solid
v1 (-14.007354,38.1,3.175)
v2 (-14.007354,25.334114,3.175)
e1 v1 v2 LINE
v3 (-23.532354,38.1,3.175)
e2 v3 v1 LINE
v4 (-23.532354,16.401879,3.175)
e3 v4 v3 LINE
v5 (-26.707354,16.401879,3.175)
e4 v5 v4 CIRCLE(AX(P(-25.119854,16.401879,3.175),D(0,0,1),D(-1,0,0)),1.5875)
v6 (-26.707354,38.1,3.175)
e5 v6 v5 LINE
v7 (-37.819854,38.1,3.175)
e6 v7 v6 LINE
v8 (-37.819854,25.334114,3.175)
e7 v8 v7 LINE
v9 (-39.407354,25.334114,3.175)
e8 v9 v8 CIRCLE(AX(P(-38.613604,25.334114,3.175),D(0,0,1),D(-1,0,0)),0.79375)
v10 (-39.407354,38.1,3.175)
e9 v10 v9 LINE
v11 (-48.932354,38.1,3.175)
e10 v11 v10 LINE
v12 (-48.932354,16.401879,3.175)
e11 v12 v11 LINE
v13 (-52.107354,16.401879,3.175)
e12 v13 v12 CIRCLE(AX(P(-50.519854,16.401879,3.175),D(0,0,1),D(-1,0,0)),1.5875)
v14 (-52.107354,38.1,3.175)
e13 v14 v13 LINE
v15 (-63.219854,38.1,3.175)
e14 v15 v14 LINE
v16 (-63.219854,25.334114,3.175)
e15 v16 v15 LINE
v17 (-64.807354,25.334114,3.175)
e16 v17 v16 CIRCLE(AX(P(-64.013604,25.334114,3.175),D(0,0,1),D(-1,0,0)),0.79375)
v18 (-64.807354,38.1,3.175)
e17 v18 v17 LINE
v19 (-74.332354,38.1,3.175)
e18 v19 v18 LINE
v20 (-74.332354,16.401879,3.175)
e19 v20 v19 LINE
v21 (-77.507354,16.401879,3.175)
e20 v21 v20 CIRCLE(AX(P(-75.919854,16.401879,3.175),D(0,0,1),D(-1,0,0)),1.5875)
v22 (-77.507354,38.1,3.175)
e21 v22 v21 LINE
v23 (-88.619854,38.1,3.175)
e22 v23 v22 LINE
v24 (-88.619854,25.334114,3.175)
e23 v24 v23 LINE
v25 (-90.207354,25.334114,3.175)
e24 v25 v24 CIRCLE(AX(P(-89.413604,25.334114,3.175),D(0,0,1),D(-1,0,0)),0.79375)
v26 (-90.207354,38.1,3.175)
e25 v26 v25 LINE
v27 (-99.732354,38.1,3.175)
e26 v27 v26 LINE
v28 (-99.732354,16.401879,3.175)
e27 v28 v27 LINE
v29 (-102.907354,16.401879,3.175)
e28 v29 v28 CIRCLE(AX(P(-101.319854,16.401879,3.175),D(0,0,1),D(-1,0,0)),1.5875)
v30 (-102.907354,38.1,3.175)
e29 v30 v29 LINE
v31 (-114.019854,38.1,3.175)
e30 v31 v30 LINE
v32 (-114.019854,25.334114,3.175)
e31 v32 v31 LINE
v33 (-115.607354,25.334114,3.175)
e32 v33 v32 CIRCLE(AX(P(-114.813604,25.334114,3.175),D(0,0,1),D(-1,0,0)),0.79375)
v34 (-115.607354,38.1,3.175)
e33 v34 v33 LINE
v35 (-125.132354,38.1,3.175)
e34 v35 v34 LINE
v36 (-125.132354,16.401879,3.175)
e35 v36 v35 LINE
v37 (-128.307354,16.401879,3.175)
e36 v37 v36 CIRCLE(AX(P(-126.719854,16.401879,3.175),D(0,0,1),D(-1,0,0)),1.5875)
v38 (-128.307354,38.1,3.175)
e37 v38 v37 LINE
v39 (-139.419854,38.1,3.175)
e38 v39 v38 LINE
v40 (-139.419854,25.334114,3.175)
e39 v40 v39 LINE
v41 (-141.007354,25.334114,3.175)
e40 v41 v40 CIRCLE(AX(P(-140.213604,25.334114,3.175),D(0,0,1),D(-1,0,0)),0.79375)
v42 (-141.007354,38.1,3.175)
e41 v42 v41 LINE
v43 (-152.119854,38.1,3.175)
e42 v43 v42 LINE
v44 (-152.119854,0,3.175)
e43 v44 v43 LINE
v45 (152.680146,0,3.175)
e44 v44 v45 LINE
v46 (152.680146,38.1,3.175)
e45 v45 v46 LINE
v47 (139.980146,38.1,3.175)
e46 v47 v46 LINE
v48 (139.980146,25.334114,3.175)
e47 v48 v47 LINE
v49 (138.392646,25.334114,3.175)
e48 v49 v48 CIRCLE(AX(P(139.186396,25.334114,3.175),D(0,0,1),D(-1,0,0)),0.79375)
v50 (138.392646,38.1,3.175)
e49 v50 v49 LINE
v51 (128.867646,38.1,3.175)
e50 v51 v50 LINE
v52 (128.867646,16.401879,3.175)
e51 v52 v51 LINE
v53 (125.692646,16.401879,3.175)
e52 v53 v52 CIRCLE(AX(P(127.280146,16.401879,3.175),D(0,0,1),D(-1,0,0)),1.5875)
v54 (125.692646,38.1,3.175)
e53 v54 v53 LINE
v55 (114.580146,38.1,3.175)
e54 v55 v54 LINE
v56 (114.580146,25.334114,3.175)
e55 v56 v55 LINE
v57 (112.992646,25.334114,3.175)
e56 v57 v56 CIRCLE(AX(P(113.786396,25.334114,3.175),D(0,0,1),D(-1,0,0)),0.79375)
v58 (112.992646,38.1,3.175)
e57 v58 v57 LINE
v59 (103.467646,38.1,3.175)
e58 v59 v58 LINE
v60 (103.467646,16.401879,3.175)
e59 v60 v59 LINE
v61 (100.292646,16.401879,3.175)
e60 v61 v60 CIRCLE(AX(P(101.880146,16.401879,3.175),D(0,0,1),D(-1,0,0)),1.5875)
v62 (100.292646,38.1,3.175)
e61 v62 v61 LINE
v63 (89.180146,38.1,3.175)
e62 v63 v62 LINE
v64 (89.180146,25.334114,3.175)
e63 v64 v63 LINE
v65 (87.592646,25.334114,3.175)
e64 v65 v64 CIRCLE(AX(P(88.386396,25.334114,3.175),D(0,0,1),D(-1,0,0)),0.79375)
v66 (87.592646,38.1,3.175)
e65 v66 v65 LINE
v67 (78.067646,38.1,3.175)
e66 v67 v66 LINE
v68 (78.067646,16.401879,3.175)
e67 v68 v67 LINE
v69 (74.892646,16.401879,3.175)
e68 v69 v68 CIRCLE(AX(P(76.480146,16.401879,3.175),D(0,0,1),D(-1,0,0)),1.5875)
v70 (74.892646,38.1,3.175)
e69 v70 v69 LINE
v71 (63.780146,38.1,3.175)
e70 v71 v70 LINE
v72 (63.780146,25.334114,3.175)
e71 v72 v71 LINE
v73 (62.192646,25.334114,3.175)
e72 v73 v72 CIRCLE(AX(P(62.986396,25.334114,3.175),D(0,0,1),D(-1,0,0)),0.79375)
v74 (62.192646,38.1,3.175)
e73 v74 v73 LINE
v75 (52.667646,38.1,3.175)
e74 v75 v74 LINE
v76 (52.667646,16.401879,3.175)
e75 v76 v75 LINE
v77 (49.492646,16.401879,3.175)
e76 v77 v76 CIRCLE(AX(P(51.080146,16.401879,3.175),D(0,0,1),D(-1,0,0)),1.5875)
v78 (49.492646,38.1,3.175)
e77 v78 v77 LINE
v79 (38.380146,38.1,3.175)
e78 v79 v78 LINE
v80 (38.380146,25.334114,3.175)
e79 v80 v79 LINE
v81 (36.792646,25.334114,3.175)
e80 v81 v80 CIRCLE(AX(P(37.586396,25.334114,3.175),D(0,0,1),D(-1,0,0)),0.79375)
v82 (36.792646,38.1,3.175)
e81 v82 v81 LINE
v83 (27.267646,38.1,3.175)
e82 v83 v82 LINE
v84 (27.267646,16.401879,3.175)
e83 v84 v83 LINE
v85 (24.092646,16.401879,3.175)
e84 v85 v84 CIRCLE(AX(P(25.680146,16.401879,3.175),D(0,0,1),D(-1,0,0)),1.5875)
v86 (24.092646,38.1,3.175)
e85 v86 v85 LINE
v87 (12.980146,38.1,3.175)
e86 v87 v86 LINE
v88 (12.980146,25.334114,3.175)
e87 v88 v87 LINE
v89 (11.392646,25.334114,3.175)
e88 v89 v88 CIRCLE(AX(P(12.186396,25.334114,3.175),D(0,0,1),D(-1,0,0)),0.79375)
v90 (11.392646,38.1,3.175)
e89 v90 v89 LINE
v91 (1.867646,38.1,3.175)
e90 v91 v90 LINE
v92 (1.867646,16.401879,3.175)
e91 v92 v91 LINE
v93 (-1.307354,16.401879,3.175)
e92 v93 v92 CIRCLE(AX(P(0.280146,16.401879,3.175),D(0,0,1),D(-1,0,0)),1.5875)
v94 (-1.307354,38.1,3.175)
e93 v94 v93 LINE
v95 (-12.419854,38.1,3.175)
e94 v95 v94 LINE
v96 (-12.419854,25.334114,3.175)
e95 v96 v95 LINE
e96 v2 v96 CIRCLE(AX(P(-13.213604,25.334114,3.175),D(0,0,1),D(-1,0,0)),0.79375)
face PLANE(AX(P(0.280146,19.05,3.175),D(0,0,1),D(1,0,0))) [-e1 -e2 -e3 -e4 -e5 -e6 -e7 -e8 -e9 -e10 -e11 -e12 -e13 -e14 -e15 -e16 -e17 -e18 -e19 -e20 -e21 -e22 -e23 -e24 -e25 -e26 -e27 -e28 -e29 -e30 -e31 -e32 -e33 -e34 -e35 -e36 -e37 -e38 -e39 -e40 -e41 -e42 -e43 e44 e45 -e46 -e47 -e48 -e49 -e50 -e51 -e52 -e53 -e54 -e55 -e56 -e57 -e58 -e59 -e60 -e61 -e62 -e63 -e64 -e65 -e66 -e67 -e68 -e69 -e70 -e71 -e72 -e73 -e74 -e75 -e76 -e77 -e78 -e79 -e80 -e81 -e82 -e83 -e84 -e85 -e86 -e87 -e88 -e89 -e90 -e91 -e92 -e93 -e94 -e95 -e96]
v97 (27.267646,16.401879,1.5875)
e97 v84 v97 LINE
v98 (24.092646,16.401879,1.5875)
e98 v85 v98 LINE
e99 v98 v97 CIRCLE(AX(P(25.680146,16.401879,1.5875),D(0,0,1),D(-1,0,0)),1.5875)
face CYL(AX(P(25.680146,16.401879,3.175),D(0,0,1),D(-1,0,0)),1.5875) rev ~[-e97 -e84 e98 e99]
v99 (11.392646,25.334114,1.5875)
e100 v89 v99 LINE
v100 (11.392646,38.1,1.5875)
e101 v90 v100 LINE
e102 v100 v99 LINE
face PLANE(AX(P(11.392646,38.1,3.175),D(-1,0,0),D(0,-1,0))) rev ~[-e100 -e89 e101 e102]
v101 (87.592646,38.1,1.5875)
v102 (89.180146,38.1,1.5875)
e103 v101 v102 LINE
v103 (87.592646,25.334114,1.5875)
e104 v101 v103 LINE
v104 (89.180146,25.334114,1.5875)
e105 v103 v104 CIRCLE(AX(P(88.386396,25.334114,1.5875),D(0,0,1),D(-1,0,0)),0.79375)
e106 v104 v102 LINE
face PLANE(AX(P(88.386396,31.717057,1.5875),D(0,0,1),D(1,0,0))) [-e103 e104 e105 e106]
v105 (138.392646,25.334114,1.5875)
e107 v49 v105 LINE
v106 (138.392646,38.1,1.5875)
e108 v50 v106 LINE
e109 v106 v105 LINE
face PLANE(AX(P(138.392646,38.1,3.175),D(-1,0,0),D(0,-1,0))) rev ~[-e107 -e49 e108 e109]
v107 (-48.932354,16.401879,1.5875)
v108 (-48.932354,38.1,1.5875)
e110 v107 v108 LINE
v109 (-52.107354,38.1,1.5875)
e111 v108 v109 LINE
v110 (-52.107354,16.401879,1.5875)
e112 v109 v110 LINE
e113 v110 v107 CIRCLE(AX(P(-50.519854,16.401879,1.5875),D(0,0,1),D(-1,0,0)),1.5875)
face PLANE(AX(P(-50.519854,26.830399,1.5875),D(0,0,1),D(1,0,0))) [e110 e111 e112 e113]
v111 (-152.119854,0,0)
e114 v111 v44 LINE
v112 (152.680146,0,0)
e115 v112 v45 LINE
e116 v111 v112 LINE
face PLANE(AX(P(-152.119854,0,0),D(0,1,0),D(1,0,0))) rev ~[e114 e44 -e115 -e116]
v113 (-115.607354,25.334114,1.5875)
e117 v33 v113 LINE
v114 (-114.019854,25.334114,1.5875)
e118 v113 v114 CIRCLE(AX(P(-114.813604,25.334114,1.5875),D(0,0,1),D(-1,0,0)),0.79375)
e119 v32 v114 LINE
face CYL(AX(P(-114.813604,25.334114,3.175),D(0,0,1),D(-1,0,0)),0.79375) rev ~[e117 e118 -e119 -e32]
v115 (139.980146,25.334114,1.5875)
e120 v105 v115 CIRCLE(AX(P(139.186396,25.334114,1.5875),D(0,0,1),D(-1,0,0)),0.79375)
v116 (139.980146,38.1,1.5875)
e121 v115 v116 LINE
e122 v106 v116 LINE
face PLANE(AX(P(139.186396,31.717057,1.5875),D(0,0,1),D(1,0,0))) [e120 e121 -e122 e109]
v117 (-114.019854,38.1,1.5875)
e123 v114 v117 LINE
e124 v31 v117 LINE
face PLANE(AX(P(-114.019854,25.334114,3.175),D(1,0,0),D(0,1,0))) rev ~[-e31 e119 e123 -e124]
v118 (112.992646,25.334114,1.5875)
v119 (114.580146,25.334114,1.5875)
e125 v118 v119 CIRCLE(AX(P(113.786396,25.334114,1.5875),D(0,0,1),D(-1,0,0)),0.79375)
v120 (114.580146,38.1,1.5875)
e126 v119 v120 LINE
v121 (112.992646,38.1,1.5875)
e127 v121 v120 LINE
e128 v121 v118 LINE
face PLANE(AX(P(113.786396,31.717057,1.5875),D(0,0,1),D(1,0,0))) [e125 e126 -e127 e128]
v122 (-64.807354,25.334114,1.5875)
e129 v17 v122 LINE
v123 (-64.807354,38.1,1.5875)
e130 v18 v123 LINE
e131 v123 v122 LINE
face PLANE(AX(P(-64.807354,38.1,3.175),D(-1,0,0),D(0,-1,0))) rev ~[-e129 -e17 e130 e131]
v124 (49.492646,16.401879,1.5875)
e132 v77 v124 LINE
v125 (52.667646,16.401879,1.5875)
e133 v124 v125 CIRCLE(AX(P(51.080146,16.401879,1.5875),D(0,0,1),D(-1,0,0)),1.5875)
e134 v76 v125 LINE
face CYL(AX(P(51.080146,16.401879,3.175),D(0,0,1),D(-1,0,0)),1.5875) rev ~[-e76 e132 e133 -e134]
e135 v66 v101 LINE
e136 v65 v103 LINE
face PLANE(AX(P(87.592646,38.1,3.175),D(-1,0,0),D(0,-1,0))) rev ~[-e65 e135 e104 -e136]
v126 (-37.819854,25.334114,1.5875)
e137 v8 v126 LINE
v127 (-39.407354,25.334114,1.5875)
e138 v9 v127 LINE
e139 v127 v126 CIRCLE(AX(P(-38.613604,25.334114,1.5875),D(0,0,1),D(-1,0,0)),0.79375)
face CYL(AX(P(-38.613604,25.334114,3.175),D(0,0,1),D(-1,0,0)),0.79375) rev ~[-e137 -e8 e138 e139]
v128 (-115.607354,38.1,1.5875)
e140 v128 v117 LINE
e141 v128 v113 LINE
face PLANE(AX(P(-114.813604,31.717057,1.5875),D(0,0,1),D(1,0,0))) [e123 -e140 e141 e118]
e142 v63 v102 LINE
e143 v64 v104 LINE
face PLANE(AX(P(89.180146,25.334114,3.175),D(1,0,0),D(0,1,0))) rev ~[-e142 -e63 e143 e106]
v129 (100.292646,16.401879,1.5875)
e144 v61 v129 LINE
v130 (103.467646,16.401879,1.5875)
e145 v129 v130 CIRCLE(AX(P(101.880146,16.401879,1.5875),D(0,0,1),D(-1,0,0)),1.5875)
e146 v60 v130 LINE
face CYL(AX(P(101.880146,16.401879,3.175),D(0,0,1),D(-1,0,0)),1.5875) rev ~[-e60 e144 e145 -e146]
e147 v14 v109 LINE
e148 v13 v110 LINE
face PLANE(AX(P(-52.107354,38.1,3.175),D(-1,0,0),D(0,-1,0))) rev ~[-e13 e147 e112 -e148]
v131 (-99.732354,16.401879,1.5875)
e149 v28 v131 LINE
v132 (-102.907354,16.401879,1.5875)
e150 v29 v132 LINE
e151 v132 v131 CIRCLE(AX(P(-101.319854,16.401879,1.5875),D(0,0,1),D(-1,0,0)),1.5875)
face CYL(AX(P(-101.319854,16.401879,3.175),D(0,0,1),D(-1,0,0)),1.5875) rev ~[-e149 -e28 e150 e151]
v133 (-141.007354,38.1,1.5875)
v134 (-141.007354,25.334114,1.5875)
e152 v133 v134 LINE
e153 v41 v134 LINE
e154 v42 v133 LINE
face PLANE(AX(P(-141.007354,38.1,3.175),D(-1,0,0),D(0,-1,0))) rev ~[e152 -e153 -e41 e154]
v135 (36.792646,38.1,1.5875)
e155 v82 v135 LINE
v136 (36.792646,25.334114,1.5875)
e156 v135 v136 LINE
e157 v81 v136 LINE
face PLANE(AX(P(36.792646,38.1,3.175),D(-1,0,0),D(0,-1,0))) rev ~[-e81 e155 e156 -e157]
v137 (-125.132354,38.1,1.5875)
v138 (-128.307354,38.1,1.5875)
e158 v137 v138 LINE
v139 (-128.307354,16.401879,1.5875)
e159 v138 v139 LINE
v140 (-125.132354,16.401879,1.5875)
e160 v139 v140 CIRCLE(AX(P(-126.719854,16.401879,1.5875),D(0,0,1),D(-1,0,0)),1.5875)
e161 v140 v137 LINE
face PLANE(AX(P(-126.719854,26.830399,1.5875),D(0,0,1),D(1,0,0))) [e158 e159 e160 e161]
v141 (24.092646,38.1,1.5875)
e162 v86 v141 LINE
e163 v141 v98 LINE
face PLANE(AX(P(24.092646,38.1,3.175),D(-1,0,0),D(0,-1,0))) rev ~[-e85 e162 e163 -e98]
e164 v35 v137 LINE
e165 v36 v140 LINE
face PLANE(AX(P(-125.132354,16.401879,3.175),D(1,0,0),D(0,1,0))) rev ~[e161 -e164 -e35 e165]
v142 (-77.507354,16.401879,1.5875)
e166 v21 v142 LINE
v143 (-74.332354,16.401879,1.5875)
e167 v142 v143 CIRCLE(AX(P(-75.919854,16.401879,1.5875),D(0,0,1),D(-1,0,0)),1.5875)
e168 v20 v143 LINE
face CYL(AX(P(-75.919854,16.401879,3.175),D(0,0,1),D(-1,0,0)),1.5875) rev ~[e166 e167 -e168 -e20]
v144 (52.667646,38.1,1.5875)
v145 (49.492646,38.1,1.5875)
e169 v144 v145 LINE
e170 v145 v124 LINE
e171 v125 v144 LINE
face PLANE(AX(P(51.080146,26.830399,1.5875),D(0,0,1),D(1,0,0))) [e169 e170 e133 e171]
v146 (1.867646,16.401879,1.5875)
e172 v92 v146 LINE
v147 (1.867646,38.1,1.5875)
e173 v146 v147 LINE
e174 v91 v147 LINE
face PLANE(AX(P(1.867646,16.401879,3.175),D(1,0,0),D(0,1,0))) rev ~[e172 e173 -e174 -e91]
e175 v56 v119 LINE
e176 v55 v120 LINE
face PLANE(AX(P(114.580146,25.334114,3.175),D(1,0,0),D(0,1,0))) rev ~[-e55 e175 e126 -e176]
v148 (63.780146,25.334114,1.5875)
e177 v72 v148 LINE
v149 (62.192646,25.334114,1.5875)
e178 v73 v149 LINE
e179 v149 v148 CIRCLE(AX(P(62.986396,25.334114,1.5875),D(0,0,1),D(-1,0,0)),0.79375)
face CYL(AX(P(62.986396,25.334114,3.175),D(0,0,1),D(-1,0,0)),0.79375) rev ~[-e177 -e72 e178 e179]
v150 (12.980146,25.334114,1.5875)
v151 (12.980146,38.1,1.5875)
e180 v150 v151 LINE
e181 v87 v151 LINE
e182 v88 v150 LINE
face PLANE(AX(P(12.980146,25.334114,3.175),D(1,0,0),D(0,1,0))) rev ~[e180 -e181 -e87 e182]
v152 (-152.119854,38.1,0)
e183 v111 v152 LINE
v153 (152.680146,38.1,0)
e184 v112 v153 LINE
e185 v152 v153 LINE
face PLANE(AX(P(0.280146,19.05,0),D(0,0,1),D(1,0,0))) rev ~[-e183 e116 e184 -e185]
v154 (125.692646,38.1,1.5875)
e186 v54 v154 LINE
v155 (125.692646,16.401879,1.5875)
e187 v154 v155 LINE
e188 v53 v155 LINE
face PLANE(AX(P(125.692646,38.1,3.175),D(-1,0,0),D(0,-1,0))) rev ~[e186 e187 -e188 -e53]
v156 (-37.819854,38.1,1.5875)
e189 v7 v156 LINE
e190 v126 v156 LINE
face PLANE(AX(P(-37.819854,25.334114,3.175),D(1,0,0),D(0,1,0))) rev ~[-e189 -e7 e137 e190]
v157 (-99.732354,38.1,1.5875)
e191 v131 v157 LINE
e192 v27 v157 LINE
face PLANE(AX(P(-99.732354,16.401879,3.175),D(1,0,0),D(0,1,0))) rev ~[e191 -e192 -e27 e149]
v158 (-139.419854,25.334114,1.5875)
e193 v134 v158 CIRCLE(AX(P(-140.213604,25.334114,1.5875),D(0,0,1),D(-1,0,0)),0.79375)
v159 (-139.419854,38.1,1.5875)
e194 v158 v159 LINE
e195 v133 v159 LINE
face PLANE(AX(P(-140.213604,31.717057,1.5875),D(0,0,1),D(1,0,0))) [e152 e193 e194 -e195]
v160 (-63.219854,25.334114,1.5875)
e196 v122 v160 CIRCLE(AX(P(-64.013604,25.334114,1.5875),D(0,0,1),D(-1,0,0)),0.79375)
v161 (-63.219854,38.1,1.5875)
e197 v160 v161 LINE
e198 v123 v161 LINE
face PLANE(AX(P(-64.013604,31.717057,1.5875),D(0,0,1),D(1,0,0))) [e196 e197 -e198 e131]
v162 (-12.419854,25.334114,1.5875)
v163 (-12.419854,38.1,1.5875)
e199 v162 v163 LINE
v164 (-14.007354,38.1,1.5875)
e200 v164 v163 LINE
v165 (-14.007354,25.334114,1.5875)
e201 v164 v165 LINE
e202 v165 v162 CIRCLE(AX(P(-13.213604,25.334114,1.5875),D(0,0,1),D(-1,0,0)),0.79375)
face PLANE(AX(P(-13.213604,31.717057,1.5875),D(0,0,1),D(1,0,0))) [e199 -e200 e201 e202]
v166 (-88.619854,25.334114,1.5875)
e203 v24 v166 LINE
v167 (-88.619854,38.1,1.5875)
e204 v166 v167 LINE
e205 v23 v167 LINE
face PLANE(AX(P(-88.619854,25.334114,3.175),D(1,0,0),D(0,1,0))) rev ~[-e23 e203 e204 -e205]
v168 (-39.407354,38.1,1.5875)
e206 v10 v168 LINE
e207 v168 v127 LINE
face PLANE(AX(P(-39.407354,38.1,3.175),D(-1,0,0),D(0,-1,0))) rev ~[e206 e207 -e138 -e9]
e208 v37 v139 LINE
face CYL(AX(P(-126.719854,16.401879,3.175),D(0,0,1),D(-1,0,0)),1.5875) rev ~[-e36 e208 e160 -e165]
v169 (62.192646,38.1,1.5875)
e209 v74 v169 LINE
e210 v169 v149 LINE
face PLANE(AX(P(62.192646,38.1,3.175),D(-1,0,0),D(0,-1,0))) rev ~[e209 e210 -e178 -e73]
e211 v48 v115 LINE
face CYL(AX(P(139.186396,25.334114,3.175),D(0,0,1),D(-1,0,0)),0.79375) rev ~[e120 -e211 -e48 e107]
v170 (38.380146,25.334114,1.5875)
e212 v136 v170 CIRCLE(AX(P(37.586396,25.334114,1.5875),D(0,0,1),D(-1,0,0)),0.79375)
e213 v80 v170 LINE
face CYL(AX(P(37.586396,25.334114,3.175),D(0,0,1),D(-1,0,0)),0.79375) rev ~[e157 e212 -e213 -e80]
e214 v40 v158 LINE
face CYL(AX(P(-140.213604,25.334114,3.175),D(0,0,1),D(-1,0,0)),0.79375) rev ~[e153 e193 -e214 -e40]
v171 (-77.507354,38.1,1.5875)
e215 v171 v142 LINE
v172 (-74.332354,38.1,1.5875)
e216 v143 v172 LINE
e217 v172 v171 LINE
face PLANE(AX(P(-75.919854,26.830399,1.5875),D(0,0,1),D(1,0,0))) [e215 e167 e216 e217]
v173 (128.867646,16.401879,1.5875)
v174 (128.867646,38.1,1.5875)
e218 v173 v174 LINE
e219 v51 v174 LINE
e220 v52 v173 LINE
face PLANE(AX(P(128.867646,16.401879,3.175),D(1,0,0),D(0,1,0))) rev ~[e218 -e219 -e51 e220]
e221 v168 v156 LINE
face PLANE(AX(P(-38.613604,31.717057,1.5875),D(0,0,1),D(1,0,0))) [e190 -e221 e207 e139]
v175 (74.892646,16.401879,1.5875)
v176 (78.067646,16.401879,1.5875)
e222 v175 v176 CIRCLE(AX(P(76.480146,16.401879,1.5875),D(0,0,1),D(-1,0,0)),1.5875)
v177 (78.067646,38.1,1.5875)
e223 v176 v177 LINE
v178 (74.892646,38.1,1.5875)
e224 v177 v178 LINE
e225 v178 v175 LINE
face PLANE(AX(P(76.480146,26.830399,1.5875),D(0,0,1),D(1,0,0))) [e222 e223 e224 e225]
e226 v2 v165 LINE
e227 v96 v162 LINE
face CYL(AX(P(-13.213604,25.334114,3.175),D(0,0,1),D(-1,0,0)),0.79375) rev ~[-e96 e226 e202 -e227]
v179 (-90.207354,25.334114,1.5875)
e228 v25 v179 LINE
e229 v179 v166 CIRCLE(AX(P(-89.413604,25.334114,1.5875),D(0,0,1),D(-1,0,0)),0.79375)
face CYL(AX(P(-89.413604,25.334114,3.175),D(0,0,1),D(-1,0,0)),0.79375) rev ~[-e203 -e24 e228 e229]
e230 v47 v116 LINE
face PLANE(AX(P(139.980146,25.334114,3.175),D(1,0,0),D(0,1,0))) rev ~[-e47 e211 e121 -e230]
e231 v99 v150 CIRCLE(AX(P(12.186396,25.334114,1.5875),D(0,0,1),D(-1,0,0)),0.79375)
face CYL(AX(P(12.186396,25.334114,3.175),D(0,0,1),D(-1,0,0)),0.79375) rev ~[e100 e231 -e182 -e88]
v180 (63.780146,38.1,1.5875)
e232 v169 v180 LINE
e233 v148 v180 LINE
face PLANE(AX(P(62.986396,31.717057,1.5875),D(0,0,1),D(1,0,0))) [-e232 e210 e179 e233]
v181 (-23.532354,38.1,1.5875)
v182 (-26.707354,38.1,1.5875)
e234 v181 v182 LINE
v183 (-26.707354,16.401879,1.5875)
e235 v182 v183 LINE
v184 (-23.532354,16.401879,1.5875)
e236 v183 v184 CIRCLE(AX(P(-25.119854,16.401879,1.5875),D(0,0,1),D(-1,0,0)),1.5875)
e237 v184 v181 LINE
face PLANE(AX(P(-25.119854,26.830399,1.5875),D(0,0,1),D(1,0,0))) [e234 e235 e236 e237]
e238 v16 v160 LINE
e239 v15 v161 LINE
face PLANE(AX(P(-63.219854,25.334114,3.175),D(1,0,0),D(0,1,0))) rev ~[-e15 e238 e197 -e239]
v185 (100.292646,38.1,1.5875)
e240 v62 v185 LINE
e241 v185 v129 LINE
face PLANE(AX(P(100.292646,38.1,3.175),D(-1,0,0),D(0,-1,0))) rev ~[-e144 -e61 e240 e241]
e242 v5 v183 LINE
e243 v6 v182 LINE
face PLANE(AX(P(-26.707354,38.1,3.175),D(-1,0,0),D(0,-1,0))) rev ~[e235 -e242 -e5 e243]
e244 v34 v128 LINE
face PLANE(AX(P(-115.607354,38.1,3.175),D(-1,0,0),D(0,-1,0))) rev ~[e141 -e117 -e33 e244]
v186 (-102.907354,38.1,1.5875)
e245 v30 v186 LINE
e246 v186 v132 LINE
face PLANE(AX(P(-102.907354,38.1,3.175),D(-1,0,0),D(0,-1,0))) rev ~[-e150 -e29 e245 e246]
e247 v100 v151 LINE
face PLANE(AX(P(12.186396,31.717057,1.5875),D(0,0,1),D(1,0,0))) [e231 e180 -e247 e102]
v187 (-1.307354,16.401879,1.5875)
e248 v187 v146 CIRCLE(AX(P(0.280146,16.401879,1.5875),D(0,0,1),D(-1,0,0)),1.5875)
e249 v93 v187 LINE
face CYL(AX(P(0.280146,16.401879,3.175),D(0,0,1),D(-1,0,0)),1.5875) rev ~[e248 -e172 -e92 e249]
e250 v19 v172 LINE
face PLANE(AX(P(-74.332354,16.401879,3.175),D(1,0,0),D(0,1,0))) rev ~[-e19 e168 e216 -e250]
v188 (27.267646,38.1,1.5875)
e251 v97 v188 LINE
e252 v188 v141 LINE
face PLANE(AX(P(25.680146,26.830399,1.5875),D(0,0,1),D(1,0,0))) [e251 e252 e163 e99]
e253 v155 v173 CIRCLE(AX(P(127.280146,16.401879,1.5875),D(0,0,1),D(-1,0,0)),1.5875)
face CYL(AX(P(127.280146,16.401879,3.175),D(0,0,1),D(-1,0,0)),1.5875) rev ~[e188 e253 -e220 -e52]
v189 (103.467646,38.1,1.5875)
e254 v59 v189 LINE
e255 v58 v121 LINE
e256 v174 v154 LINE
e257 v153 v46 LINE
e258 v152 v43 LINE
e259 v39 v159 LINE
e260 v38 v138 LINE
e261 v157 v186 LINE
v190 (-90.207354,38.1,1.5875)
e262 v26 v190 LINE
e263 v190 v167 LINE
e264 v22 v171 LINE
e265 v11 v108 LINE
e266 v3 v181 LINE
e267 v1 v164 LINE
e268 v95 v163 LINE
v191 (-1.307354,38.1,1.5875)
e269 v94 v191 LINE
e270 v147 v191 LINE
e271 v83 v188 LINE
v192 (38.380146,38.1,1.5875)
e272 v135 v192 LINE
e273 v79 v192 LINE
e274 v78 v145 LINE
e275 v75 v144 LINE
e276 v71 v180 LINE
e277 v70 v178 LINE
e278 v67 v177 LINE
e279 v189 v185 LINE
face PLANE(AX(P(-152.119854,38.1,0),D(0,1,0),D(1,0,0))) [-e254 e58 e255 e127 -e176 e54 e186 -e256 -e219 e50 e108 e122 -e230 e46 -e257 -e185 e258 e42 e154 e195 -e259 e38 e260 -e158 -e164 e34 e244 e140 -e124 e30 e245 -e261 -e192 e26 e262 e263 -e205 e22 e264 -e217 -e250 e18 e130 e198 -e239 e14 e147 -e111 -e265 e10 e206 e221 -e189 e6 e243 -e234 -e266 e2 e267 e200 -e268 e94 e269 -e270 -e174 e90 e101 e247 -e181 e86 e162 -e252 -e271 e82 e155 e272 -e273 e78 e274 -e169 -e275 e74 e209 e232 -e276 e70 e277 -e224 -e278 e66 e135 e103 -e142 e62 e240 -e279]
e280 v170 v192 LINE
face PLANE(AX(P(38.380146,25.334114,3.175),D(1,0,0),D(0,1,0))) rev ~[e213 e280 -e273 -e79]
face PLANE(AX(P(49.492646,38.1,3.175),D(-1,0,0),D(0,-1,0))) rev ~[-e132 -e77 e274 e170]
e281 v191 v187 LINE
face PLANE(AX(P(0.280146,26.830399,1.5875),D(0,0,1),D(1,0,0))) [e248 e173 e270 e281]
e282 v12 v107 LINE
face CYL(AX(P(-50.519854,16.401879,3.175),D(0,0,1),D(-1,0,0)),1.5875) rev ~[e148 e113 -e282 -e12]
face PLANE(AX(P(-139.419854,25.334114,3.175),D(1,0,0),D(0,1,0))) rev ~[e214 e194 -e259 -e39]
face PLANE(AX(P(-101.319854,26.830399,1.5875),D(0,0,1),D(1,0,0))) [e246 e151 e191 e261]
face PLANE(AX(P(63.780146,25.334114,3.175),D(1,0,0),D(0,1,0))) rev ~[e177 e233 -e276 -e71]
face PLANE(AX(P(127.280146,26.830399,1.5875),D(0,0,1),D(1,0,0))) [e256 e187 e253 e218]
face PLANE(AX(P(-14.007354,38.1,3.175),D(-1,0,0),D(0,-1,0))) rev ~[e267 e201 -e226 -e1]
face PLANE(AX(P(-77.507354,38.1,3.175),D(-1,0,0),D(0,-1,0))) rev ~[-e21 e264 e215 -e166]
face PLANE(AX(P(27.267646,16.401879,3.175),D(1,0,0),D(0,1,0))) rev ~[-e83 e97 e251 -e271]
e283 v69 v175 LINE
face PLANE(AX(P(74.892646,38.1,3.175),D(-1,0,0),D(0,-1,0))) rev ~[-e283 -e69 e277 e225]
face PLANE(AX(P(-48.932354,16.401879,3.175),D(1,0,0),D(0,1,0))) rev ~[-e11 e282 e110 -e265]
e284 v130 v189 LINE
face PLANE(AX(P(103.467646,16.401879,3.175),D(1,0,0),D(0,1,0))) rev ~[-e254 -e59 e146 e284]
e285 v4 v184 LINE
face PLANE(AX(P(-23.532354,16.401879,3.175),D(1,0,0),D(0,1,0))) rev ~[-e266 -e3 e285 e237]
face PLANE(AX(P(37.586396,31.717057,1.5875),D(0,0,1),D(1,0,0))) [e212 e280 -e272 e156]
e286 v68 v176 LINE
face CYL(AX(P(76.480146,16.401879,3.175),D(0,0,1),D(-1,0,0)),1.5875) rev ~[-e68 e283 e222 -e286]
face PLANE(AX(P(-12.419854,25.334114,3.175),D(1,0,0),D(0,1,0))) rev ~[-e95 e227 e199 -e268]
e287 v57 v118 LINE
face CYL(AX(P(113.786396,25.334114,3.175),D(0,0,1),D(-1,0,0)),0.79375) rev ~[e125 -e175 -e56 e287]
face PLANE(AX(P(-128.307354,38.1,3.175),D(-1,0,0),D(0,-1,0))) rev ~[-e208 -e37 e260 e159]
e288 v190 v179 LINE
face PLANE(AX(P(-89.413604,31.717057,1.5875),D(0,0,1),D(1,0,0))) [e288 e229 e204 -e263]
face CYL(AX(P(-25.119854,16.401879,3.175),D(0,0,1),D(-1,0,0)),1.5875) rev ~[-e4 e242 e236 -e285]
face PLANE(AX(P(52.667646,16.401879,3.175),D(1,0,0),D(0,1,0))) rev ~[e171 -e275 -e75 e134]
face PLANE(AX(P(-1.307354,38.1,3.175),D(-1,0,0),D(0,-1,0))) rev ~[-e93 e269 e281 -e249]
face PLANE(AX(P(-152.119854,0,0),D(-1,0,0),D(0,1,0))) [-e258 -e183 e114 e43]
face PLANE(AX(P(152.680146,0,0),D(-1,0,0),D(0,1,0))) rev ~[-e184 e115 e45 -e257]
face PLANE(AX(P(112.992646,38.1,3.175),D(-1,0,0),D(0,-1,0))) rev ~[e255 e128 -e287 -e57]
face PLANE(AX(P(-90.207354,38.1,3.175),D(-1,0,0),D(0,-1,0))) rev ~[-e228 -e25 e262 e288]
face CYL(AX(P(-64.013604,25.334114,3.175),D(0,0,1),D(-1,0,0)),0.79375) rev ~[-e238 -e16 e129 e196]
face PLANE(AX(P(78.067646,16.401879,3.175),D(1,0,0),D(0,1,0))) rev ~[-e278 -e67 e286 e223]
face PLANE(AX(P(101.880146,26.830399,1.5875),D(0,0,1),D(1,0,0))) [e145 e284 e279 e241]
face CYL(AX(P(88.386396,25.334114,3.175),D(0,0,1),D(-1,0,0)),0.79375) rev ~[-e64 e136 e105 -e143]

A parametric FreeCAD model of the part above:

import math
import FreeCAD as App
import Part
import Sketcher

V = App.Vector
Q = App.Units.Quantity

doc = App.newDocument("Part")
params = doc.addObject("Spreadsheet::Sheet", "Params")
for row, (alias, value) in enumerate([
    ("sketch1_width", "12 in"),
    ("sketch1_height", "1.5 in"),
    ("pad1_length", "0.125 in"),
    ("sketch2_radius", "0.0625 in"),
    ("pocket1_length", "0.0625 in"),
    ("sketch3_radius", "0.03125 in"),
    ("pocket2_length", "0.0625 in"),
], start=1):
    params.set(f"A{row}", alias)
    params.set(f"B{row}", "=" + value)
    params.setAlias(f"B{row}", alias)

body = doc.addObject("PartDesign::Body", "Body")

sketch1 = body.newObject("Sketcher::SketchObject", "Sketch")
sketch1.AttachmentSupport = (doc.getObject("XY_Plane"), [""])
sketch1.MapMode = "FlatFace"
sketch1.addGeometry([
    Part.LineSegment(V(-152, 38, 0), V(-152, 0, 0)),
    Part.LineSegment(V(-152, 0, 0), V(153, 0, 0)),
    Part.LineSegment(V(153, 0, 0), V(153, 38, 0)),
    Part.LineSegment(V(153, 38, 0), V(-152, 38, 0)),
], False)
sketch1.addConstraint([
    Sketcher.Constraint("Coincident", 0, 2, 1, 1),
    Sketcher.Constraint("Coincident", 1, 2, 2, 1),
    Sketcher.Constraint("Coincident", 2, 2, 3, 1),
    Sketcher.Constraint("Coincident", 3, 2, 0, 1),
    Sketcher.Constraint("Vertical", 0),
    Sketcher.Constraint("Horizontal", 1),
    Sketcher.Constraint("Vertical", 2),
    Sketcher.Constraint("Horizontal", 3),
    Sketcher.Constraint("PointOnObject", 0, 2, -1),
    Sketcher.Constraint("DistanceX", 1, 1, 1, 2, Q("12 in")),
    Sketcher.Constraint("DistanceY", 0, 2, 0, 1, Q("1.5 in")),
    Sketcher.Constraint("DistanceX", 0, 2, -1, 1, Q("152.119854 mm")),
])
sketch1.setExpression("Constraints[9]", "Params.sketch1_width")
sketch1.setExpression("Constraints[10]", "Params.sketch1_height")
pad1 = body.newObject("PartDesign::Pad", "Pad")
pad1.Profile = sketch1
pad1.setExpression("Length", "Params.pad1_length")

sketch2 = body.newObject("Sketcher::SketchObject", "Sketch001")
sketch2.AttachmentSupport = (doc.getObject("XY_Plane"), [""])
sketch2.MapMode = "FlatFace"
sketch2.AttachmentOffset = App.Placement(V(0, 0, 0.125 * 25.4), App.Rotation())
sketch2.addGeometry([
    Part.LineSegment(V(-128.3, 38.1, 0), V(-128.3, 16.4, 0)),
    Part.ArcOfCircle(Part.Circle(V(-126.7, 16.4, 0), V(0, 0, 1), 1.6), math.radians(180), math.radians(360)),
    Part.LineSegment(V(-125.1, 16.4, 0), V(-125.1, 38.1, 0)),
    Part.LineSegment(V(-125.1, 38.1, 0), V(-128.3, 38.1, 0)),
    Part.LineSegment(V(-102.9, 38.1, 0), V(-102.9, 16.4, 0)),
    Part.ArcOfCircle(Part.Circle(V(-101.3, 16.4, 0), V(0, 0, 1), 1.6), math.radians(180), math.radians(360)),
    Part.LineSegment(V(-99.7, 16.4, 0), V(-99.7, 38.1, 0)),
    Part.LineSegment(V(-99.7, 38.1, 0), V(-102.9, 38.1, 0)),
    Part.LineSegment(V(-77.5, 38.1, 0), V(-77.5, 16.4, 0)),
    Part.ArcOfCircle(Part.Circle(V(-75.9, 16.4, 0), V(0, 0, 1), 1.6), math.radians(180), math.radians(360)),
    Part.LineSegment(V(-74.3, 16.4, 0), V(-74.3, 38.1, 0)),
    Part.LineSegment(V(-74.3, 38.1, 0), V(-77.5, 38.1, 0)),
    Part.LineSegment(V(-52.1, 38.1, 0), V(-52.1, 16.4, 0)),
    Part.ArcOfCircle(Part.Circle(V(-50.5, 16.4, 0), V(0, 0, 1), 1.6), math.radians(180), math.radians(360)),
    Part.LineSegment(V(-48.9, 16.4, 0), V(-48.9, 38.1, 0)),
    Part.LineSegment(V(-48.9, 38.1, 0), V(-52.1, 38.1, 0)),
    Part.LineSegment(V(-26.7, 38.1, 0), V(-26.7, 16.4, 0)),
    Part.ArcOfCircle(Part.Circle(V(-25.1, 16.4, 0), V(0, 0, 1), 1.6), math.radians(180), math.radians(360)),
    Part.LineSegment(V(-23.5, 16.4, 0), V(-23.5, 38.1, 0)),
    Part.LineSegment(V(-23.5, 38.1, 0), V(-26.7, 38.1, 0)),
    Part.LineSegment(V(1.9, 16.4, 0), V(1.9, 38.1, 0)),
    Part.LineSegment(V(1.9, 38.1, 0), V(-1.3, 38.1, 0)),
    Part.LineSegment(V(-1.3, 38.1, 0), V(-1.3, 16.4, 0)),
    Part.ArcOfCircle(Part.Circle(V(0.3, 16.4, 0), V(0, 0, 1), 1.6), math.radians(180), math.radians(360)),
    Part.LineSegment(V(27.3, 16.4, 0), V(27.3, 38.1, 0)),
    Part.LineSegment(V(27.3, 38.1, 0), V(24.1, 38.1, 0)),
    Part.LineSegment(V(24.1, 38.1, 0), V(24.1, 16.4, 0)),
    Part.ArcOfCircle(Part.Circle(V(25.7, 16.4, 0), V(0, 0, 1), 1.6), math.radians(180), math.radians(360)),
    Part.LineSegment(V(52.7, 16.4, 0), V(52.7, 38.1, 0)),
    Part.LineSegment(V(52.7, 38.1, 0), V(49.5, 38.1, 0)),
    Part.LineSegment(V(49.5, 38.1, 0), V(49.5, 16.4, 0)),
    Part.ArcOfCircle(Part.Circle(V(51.1, 16.4, 0), V(0, 0, 1), 1.6), math.radians(180), math.radians(360)),
    Part.LineSegment(V(78.1, 16.4, 0), V(78.1, 38.1, 0)),
    Part.LineSegment(V(78.1, 38.1, 0), V(74.9, 38.1, 0)),
    Part.LineSegment(V(74.9, 38.1, 0), V(74.9, 16.4, 0)),
    Part.ArcOfCircle(Part.Circle(V(76.5, 16.4, 0), V(0, 0, 1), 1.6), math.radians(180), math.radians(360)),
    Part.LineSegment(V(103.5, 16.4, 0), V(103.5, 38.1, 0)),
    Part.LineSegment(V(103.5, 38.1, 0), V(100.3, 38.1, 0)),
    Part.LineSegment(V(100.3, 38.1, 0), V(100.3, 16.4, 0)),
    Part.ArcOfCircle(Part.Circle(V(101.9, 16.4, 0), V(0, 0, 1), 1.6), math.radians(180), math.radians(360)),
    Part.LineSegment(V(128.9, 16.4, 0), V(128.9, 38.1, 0)),
    Part.LineSegment(V(128.9, 38.1, 0), V(125.7, 38.1, 0)),
    Part.LineSegment(V(125.7, 38.1, 0), V(125.7, 16.4, 0)),
    Part.ArcOfCircle(Part.Circle(V(127.3, 16.4, 0), V(0, 0, 1), 1.6), math.radians(180), math.radians(360)),
], False)
sketch2.addConstraint([
    Sketcher.Constraint("Tangent", 0, 2, 1, 1),
    Sketcher.Constraint("Tangent", 1, 2, 2, 1),
    Sketcher.Constraint("Coincident", 2, 2, 3, 1),
    Sketcher.Constraint("Coincident", 3, 2, 0, 1),
    Sketcher.Constraint("Tangent", 4, 2, 5, 1),
    Sketcher.Constraint("Tangent", 5, 2, 6, 1),
    Sketcher.Constraint("Coincident", 6, 2, 7, 1),
    Sketcher.Constraint("Coincident", 7, 2, 4, 1),
    Sketcher.Constraint("Tangent", 8, 2, 9, 1),
    Sketcher.Constraint("Tangent", 9, 2, 10, 1),
    Sketcher.Constraint("Coincident", 10, 2, 11, 1),
    Sketcher.Constraint("Coincident", 11, 2, 8, 1),
    Sketcher.Constraint("Tangent", 12, 2, 13, 1),
    Sketcher.Constraint("Tangent", 13, 2, 14, 1),
    Sketcher.Constraint("Coincident", 14, 2, 15, 1),
    Sketcher.Constraint("Coincident", 15, 2, 12, 1),
    Sketcher.Constraint("Tangent", 16, 2, 17, 1),
    Sketcher.Constraint("Tangent", 17, 2, 18, 1),
    Sketcher.Constraint("Coincident", 18, 2, 19, 1),
    Sketcher.Constraint("Coincident", 19, 2, 16, 1),
    Sketcher.Constraint("Coincident", 20, 2, 21, 1),
    Sketcher.Constraint("Coincident", 21, 2, 22, 1),
    Sketcher.Constraint("Tangent", 22, 2, 23, 1),
    Sketcher.Constraint("Tangent", 23, 2, 20, 1),
    Sketcher.Constraint("Coincident", 24, 2, 25, 1),
    Sketcher.Constraint("Coincident", 25, 2, 26, 1),
    Sketcher.Constraint("Tangent", 26, 2, 27, 1),
    Sketcher.Constraint("Tangent", 27, 2, 24, 1),
    Sketcher.Constraint("Coincident", 28, 2, 29, 1),
    Sketcher.Constraint("Coincident", 29, 2, 30, 1),
    Sketcher.Constraint("Tangent", 30, 2, 31, 1),
    Sketcher.Constraint("Tangent", 31, 2, 28, 1),
    Sketcher.Constraint("Coincident", 32, 2, 33, 1),
    Sketcher.Constraint("Coincident", 33, 2, 34, 1),
    Sketcher.Constraint("Tangent", 34, 2, 35, 1),
    Sketcher.Constraint("Tangent", 35, 2, 32, 1),
    Sketcher.Constraint("Coincident", 36, 2, 37, 1),
    Sketcher.Constraint("Coincident", 37, 2, 38, 1),
    Sketcher.Constraint("Tangent", 38, 2, 39, 1),
    Sketcher.Constraint("Tangent", 39, 2, 36, 1),
    Sketcher.Constraint("Coincident", 40, 2, 41, 1),
    Sketcher.Constraint("Coincident", 41, 2, 42, 1),
    Sketcher.Constraint("Tangent", 42, 2, 43, 1),
    Sketcher.Constraint("Tangent", 43, 2, 40, 1),
    Sketcher.Constraint("Vertical", 0),
    Sketcher.Constraint("Vertical", 2),
    Sketcher.Constraint("Horizontal", 3),
    Sketcher.Constraint("Vertical", 4),
    Sketcher.Constraint("Vertical", 6),
    Sketcher.Constraint("Horizontal", 7),
    Sketcher.Constraint("Vertical", 8),
    Sketcher.Constraint("Vertical", 10),
    Sketcher.Constraint("Horizontal", 11),
    Sketcher.Constraint("Vertical", 12),
    Sketcher.Constraint("Vertical", 14),
    Sketcher.Constraint("Horizontal", 15),
    Sketcher.Constraint("Vertical", 16),
    Sketcher.Constraint("Vertical", 18),
    Sketcher.Constraint("Horizontal", 19),
    Sketcher.Constraint("Vertical", 20),
    Sketcher.Constraint("Horizontal", 21),
    Sketcher.Constraint("Vertical", 22),
    Sketcher.Constraint("Vertical", 24),
    Sketcher.Constraint("Horizontal", 25),
    Sketcher.Constraint("Vertical", 26),
    Sketcher.Constraint("Vertical", 28),
    Sketcher.Constraint("Horizontal", 29),
    Sketcher.Constraint("Vertical", 30),
    Sketcher.Constraint("Vertical", 32),
    Sketcher.Constraint("Horizontal", 33),
    Sketcher.Constraint("Vertical", 34),
    Sketcher.Constraint("Vertical", 36),
    Sketcher.Constraint("Horizontal", 37),
    Sketcher.Constraint("Vertical", 38),
    Sketcher.Constraint("Vertical", 40),
    Sketcher.Constraint("Horizontal", 41),
    Sketcher.Constraint("Vertical", 42),
    Sketcher.Constraint("Equal", 1, 5),
    Sketcher.Constraint("Equal", 5, 9),
    Sketcher.Constraint("Equal", 9, 13),
    Sketcher.Constraint("Equal", 13, 17),
    Sketcher.Constraint("Equal", 17, 23),
    Sketcher.Constraint("Equal", 23, 27),
    Sketcher.Constraint("Equal", 27, 31),
    Sketcher.Constraint("Equal", 31, 35),
    Sketcher.Constraint("Equal", 35, 39),
    Sketcher.Constraint("Equal", 39, 43),
    Sketcher.Constraint("Horizontal", 1, 3, 5, 3),
    Sketcher.Constraint("Horizontal", 5, 3, 9, 3),
    Sketcher.Constraint("Horizontal", 9, 3, 13, 3),
    Sketcher.Constraint("Horizontal", 13, 3, 17, 3),
    Sketcher.Constraint("Horizontal", 17, 3, 23, 3),
    Sketcher.Constraint("Horizontal", 23, 3, 27, 3),
    Sketcher.Constraint("Horizontal", 27, 3, 31, 3),
    Sketcher.Constraint("Horizontal", 31, 3, 35, 3),
    Sketcher.Constraint("Horizontal", 35, 3, 39, 3),
    Sketcher.Constraint("Horizontal", 39, 3, 43, 3),
    Sketcher.Constraint("Horizontal", 3, 2, 6, 2),
    Sketcher.Constraint("Horizontal", 7, 2, 10, 2),
    Sketcher.Constraint("Horizontal", 11, 2, 14, 2),
    Sketcher.Constraint("Horizontal", 15, 2, 18, 2),
    Sketcher.Constraint("Horizontal", 19, 2, 20, 2),
    Sketcher.Constraint("Horizontal", 21, 2, 24, 2),
    Sketcher.Constraint("Horizontal", 25, 2, 28, 2),
    Sketcher.Constraint("Horizontal", 29, 2, 32, 2),
    Sketcher.Constraint("Horizontal", 33, 2, 36, 2),
    Sketcher.Constraint("Horizontal", 37, 2, 40, 2),
    Sketcher.Constraint("Radius", 1, Q("0.0625 in")),
    Sketcher.Constraint("DistanceX", 1, 3, 5, 3, Q("1 in")),
    Sketcher.Constraint("DistanceX", 5, 3, 9, 3, Q("1 in")),
    Sketcher.Constraint("DistanceX", 9, 3, 13, 3, Q("1 in")),
    Sketcher.Constraint("DistanceX", 13, 3, 17, 3, Q("1 in")),
    Sketcher.Constraint("DistanceX", 17, 3, 23, 3, Q("1 in")),
    Sketcher.Constraint("DistanceX", 23, 3, 27, 3, Q("1 in")),
    Sketcher.Constraint("DistanceX", 27, 3, 31, 3, Q("1 in")),
    Sketcher.Constraint("DistanceX", 31, 3, 35, 3, Q("1 in")),
    Sketcher.Constraint("DistanceX", 35, 3, 39, 3, Q("1 in")),
    Sketcher.Constraint("DistanceX", 39, 3, 43, 3, Q("1 in")),
    Sketcher.Constraint("DistanceY", -1, 1, 2, 2, Q("1.5 in")),
    Sketcher.Constraint("DistanceY", 0, 2, 0, 1, Q("21.698121 mm")),
    Sketcher.Constraint("DistanceX", 1, 3, -1, 1, Q("126.719854 mm")),
])
sketch2.setExpression("Constraints[107]", "Params.sketch2_radius")
pocket1 = body.newObject("PartDesign::Pocket", "Pocket")
pocket1.Profile = sketch2
pocket1.setExpression("Length", "Params.pocket1_length")

sketch3 = body.newObject("Sketcher::SketchObject", "Sketch002")
sketch3.AttachmentSupport = (doc.getObject("XY_Plane"), [""])
sketch3.MapMode = "FlatFace"
sketch3.AttachmentOffset = App.Placement(V(0, 0, 0.125 * 25.4), App.Rotation())
sketch3.addGeometry([
    Part.ArcOfCircle(Part.Circle(V(-140.2, 38.1, 0), V(0, 0, 1), 0.8), math.radians(0), math.radians(180)),
    Part.LineSegment(V(-141, 38.1, 0), V(-141, 25.3, 0)),
    Part.ArcOfCircle(Part.Circle(V(-140.2, 25.3, 0), V(0, 0, 1), 0.8), math.radians(180), math.radians(360)),
    Part.LineSegment(V(-139.4, 25.3, 0), V(-139.4, 38.1, 0)),
    Part.ArcOfCircle(Part.Circle(V(-114.8, 38.1, 0), V(0, 0, 1), 0.8), math.radians(0), math.radians(180)),
    Part.LineSegment(V(-115.6, 38.1, 0), V(-115.6, 25.3, 0)),
    Part.ArcOfCircle(Part.Circle(V(-114.8, 25.3, 0), V(0, 0, 1), 0.8), math.radians(180), math.radians(360)),
    Part.LineSegment(V(-114, 25.3, 0), V(-114, 38.1, 0)),
    Part.ArcOfCircle(Part.Circle(V(-89.4, 38.1, 0), V(0, 0, 1), 0.8), math.radians(0), math.radians(180)),
    Part.LineSegment(V(-90.2, 38.1, 0), V(-90.2, 25.3, 0)),
    Part.ArcOfCircle(Part.Circle(V(-89.4, 25.3, 0), V(0, 0, 1), 0.8), math.radians(180), math.radians(360)),
    Part.LineSegment(V(-88.6, 25.3, 0), V(-88.6, 38.1, 0)),
    Part.ArcOfCircle(Part.Circle(V(-64, 38.1, 0), V(0, 0, 1), 0.8), math.radians(0), math.radians(180)),
    Part.LineSegment(V(-64.8, 38.1, 0), V(-64.8, 25.3, 0)),
    Part.ArcOfCircle(Part.Circle(V(-64, 25.3, 0), V(0, 0, 1), 0.8), math.radians(180), math.radians(360)),
    Part.LineSegment(V(-63.2, 25.3, 0), V(-63.2, 38.1, 0)),
    Part.ArcOfCircle(Part.Circle(V(-38.6, 38.1, 0), V(0, 0, 1), 0.8), math.radians(0), math.radians(180)),
    Part.LineSegment(V(-39.4, 38.1, 0), V(-39.4, 25.3, 0)),
    Part.ArcOfCircle(Part.Circle(V(-38.6, 25.3, 0), V(0, 0, 1), 0.8), math.radians(180), math.radians(360)),
    Part.LineSegment(V(-37.8, 25.3, 0), V(-37.8, 38.1, 0)),
    Part.ArcOfCircle(Part.Circle(V(-13.2, 38.1, 0), V(0, 0, 1), 0.8), math.radians(0), math.radians(180)),
    Part.LineSegment(V(-14, 38.1, 0), V(-14, 25.3, 0)),
    Part.ArcOfCircle(Part.Circle(V(-13.2, 25.3, 0), V(0, 0, 1), 0.8), math.radians(180), math.radians(360)),
    Part.LineSegment(V(-12.4, 25.3, 0), V(-12.4, 38.1, 0)),
    Part.ArcOfCircle(Part.Circle(V(12.2, 38.1, 0), V(0, 0, 1), 0.8), math.radians(0), math.radians(180)),
    Part.LineSegment(V(11.4, 38.1, 0), V(11.4, 25.3, 0)),
    Part.ArcOfCircle(Part.Circle(V(12.2, 25.3, 0), V(0, 0, 1), 0.8), math.radians(180), math.radians(360)),
    Part.LineSegment(V(13, 25.3, 0), V(13, 38.1, 0)),
    Part.ArcOfCircle(Part.Circle(V(37.6, 38.1, 0), V(0, 0, 1), 0.8), math.radians(0), math.radians(180)),
    Part.LineSegment(V(36.8, 38.1, 0), V(36.8, 25.3, 0)),
    Part.ArcOfCircle(Part.Circle(V(37.6, 25.3, 0), V(0, 0, 1), 0.8), math.radians(180), math.radians(360)),
    Part.LineSegment(V(38.4, 25.3, 0), V(38.4, 38.1, 0)),
    Part.ArcOfCircle(Part.Circle(V(63, 38.1, 0), V(0, 0, 1), 0.8), math.radians(0), math.radians(180)),
    Part.LineSegment(V(62.2, 38.1, 0), V(62.2, 25.3, 0)),
    Part.ArcOfCircle(Part.Circle(V(63, 25.3, 0), V(0, 0, 1), 0.8), math.radians(180), math.radians(360)),
    Part.LineSegment(V(63.8, 25.3, 0), V(63.8, 38.1, 0)),
    Part.ArcOfCircle(Part.Circle(V(88.4, 38.1, 0), V(0, 0, 1), 0.8), math.radians(0), math.radians(180)),
    Part.LineSegment(V(87.6, 38.1, 0), V(87.6, 25.3, 0)),
    Part.ArcOfCircle(Part.Circle(V(88.4, 25.3, 0), V(0, 0, 1), 0.8), math.radians(180), math.radians(360)),
    Part.LineSegment(V(89.2, 25.3, 0), V(89.2, 38.1, 0)),
    Part.ArcOfCircle(Part.Circle(V(113.8, 38.1, 0), V(0, 0, 1), 0.8), math.radians(0), math.radians(180)),
    Part.LineSegment(V(113, 38.1, 0), V(113, 25.3, 0)),
    Part.ArcOfCircle(Part.Circle(V(113.8, 25.3, 0), V(0, 0, 1), 0.8), math.radians(180), math.radians(360)),
    Part.LineSegment(V(114.6, 25.3, 0), V(114.6, 38.1, 0)),
    Part.ArcOfCircle(Part.Circle(V(139.2, 38.1, 0), V(0, 0, 1), 0.8), math.radians(0), math.radians(180)),
    Part.LineSegment(V(138.4, 38.1, 0), V(138.4, 25.3, 0)),
    Part.ArcOfCircle(Part.Circle(V(139.2, 25.3, 0), V(0, 0, 1), 0.8), math.radians(180), math.radians(360)),
    Part.LineSegment(V(140, 25.3, 0), V(140, 38.1, 0)),
], False)
sketch3.addConstraint([
    Sketcher.Constraint("Tangent", 0, 2, 1, 1),
    Sketcher.Constraint("Tangent", 1, 2, 2, 1),
    Sketcher.Constraint("Tangent", 2, 2, 3, 1),
    Sketcher.Constraint("Tangent", 3, 2, 0, 1),
    Sketcher.Constraint("Tangent", 4, 2, 5, 1),
    Sketcher.Constraint("Tangent", 5, 2, 6, 1),
    Sketcher.Constraint("Tangent", 6, 2, 7, 1),
    Sketcher.Constraint("Tangent", 7, 2, 4, 1),
    Sketcher.Constraint("Tangent", 8, 2, 9, 1),
    Sketcher.Constraint("Tangent", 9, 2, 10, 1),
    Sketcher.Constraint("Tangent", 10, 2, 11, 1),
    Sketcher.Constraint("Tangent", 11, 2, 8, 1),
    Sketcher.Constraint("Tangent", 12, 2, 13, 1),
    Sketcher.Constraint("Tangent", 13, 2, 14, 1),
    Sketcher.Constraint("Tangent", 14, 2, 15, 1),
    Sketcher.Constraint("Tangent", 15, 2, 12, 1),
    Sketcher.Constraint("Tangent", 16, 2, 17, 1),
    Sketcher.Constraint("Tangent", 17, 2, 18, 1),
    Sketcher.Constraint("Tangent", 18, 2, 19, 1),
    Sketcher.Constraint("Tangent", 19, 2, 16, 1),
    Sketcher.Constraint("Tangent", 20, 2, 21, 1),
    Sketcher.Constraint("Tangent", 21, 2, 22, 1),
    Sketcher.Constraint("Tangent", 22, 2, 23, 1),
    Sketcher.Constraint("Tangent", 23, 2, 20, 1),
    Sketcher.Constraint("Tangent", 24, 2, 25, 1),
    Sketcher.Constraint("Tangent", 25, 2, 26, 1),
    Sketcher.Constraint("Tangent", 26, 2, 27, 1),
    Sketcher.Constraint("Tangent", 27, 2, 24, 1),
    Sketcher.Constraint("Tangent", 28, 2, 29, 1),
    Sketcher.Constraint("Tangent", 29, 2, 30, 1),
    Sketcher.Constraint("Tangent", 30, 2, 31, 1),
    Sketcher.Constraint("Tangent", 31, 2, 28, 1),
    Sketcher.Constraint("Tangent", 32, 2, 33, 1),
    Sketcher.Constraint("Tangent", 33, 2, 34, 1),
    Sketcher.Constraint("Tangent", 34, 2, 35, 1),
    Sketcher.Constraint("Tangent", 35, 2, 32, 1),
    Sketcher.Constraint("Tangent", 36, 2, 37, 1),
    Sketcher.Constraint("Tangent", 37, 2, 38, 1),
    Sketcher.Constraint("Tangent", 38, 2, 39, 1),
    Sketcher.Constraint("Tangent", 39, 2, 36, 1),
    Sketcher.Constraint("Tangent", 40, 2, 41, 1),
    Sketcher.Constraint("Tangent", 41, 2, 42, 1),
    Sketcher.Constraint("Tangent", 42, 2, 43, 1),
    Sketcher.Constraint("Tangent", 43, 2, 40, 1),
    Sketcher.Constraint("Tangent", 44, 2, 45, 1),
    Sketcher.Constraint("Tangent", 45, 2, 46, 1),
    Sketcher.Constraint("Tangent", 46, 2, 47, 1),
    Sketcher.Constraint("Tangent", 47, 2, 44, 1),
    Sketcher.Constraint("Vertical", 1),
    Sketcher.Constraint("Vertical", 3),
    Sketcher.Constraint("Vertical", 5),
    Sketcher.Constraint("Vertical", 7),
    Sketcher.Constraint("Vertical", 9),
    Sketcher.Constraint("Vertical", 11),
    Sketcher.Constraint("Vertical", 13),
    Sketcher.Constraint("Vertical", 15),
    Sketcher.Constraint("Vertical", 17),
    Sketcher.Constraint("Vertical", 19),
    Sketcher.Constraint("Vertical", 21),
    Sketcher.Constraint("Vertical", 23),
    Sketcher.Constraint("Vertical", 25),
    Sketcher.Constraint("Vertical", 27),
    Sketcher.Constraint("Vertical", 29),
    Sketcher.Constraint("Vertical", 31),
    Sketcher.Constraint("Vertical", 33),
    Sketcher.Constraint("Vertical", 35),
    Sketcher.Constraint("Vertical", 37),
    Sketcher.Constraint("Vertical", 39),
    Sketcher.Constraint("Vertical", 41),
    Sketcher.Constraint("Vertical", 43),
    Sketcher.Constraint("Vertical", 45),
    Sketcher.Constraint("Vertical", 47),
    Sketcher.Constraint("Equal", 2, 4),
    Sketcher.Constraint("Equal", 6, 8),
    Sketcher.Constraint("Equal", 10, 12),
    Sketcher.Constraint("Equal", 14, 16),
    Sketcher.Constraint("Equal", 18, 20),
    Sketcher.Constraint("Equal", 22, 24),
    Sketcher.Constraint("Equal", 26, 28),
    Sketcher.Constraint("Equal", 30, 32),
    Sketcher.Constraint("Equal", 34, 36),
    Sketcher.Constraint("Equal", 38, 40),
    Sketcher.Constraint("Equal", 42, 44),
    Sketcher.Constraint("Horizontal", 0, 3, 4, 3),
    Sketcher.Constraint("Horizontal", 2, 3, 6, 3),
    Sketcher.Constraint("Horizontal", 4, 3, 8, 3),
    Sketcher.Constraint("Horizontal", 6, 3, 10, 3),
    Sketcher.Constraint("Horizontal", 8, 3, 12, 3),
    Sketcher.Constraint("Horizontal", 10, 3, 14, 3),
    Sketcher.Constraint("Horizontal", 12, 3, 16, 3),
    Sketcher.Constraint("Horizontal", 14, 3, 18, 3),
    Sketcher.Constraint("Horizontal", 16, 3, 20, 3),
    Sketcher.Constraint("Horizontal", 18, 3, 22, 3),
    Sketcher.Constraint("Horizontal", 20, 3, 24, 3),
    Sketcher.Constraint("Horizontal", 22, 3, 26, 3),
    Sketcher.Constraint("Horizontal", 24, 3, 28, 3),
    Sketcher.Constraint("Horizontal", 26, 3, 30, 3),
    Sketcher.Constraint("Horizontal", 28, 3, 32, 3),
    Sketcher.Constraint("Horizontal", 30, 3, 34, 3),
    Sketcher.Constraint("Horizontal", 32, 3, 36, 3),
    Sketcher.Constraint("Horizontal", 34, 3, 38, 3),
    Sketcher.Constraint("Horizontal", 36, 3, 40, 3),
    Sketcher.Constraint("Horizontal", 38, 3, 42, 3),
    Sketcher.Constraint("Horizontal", 40, 3, 44, 3),
    Sketcher.Constraint("Horizontal", 42, 3, 46, 3),
    Sketcher.Constraint("Radius", 0, Q("0.03125 in")),
    Sketcher.Constraint("DistanceY", -1, 1, 0, 3, Q("1.5 in")),
    Sketcher.Constraint("DistanceY", 1, 2, 1, 1, Q("12.765886 mm")),
    Sketcher.Constraint("DistanceX", 0, 3, -1, 1, Q("140.213604 mm")),
    Sketcher.Constraint("DistanceX", 4, 3, -1, 1, Q("114.813604 mm")),
    Sketcher.Constraint("DistanceX", 8, 3, -1, 1, Q("89.413604 mm")),
    Sketcher.Constraint("DistanceX", 12, 3, -1, 1, Q("64.013604 mm")),
    Sketcher.Constraint("DistanceX", 16, 3, -1, 1, Q("38.613604 mm")),
    Sketcher.Constraint("DistanceX", 20, 3, -1, 1, Q("13.213604 mm")),
    Sketcher.Constraint("DistanceX", -1, 1, 24, 3, Q("12.186396 mm")),
    Sketcher.Constraint("DistanceX", -1, 1, 28, 3, Q("37.586396 mm")),
    Sketcher.Constraint("DistanceX", -1, 1, 32, 3, Q("62.986396 mm")),
    Sketcher.Constraint("DistanceX", -1, 1, 36, 3, Q("88.386396 mm")),
    Sketcher.Constraint("DistanceX", -1, 1, 40, 3, Q("113.786396 mm")),
    Sketcher.Constraint("DistanceX", -1, 1, 44, 3, Q("139.186396 mm")),
])
sketch3.setExpression("Constraints[105]", "Params.sketch3_radius")
pocket2 = body.newObject("PartDesign::Pocket", "Pocket001")
pocket2.Profile = sketch3
pocket2.setExpression("Length", "Params.pocket2_length")

doc.recompute()
